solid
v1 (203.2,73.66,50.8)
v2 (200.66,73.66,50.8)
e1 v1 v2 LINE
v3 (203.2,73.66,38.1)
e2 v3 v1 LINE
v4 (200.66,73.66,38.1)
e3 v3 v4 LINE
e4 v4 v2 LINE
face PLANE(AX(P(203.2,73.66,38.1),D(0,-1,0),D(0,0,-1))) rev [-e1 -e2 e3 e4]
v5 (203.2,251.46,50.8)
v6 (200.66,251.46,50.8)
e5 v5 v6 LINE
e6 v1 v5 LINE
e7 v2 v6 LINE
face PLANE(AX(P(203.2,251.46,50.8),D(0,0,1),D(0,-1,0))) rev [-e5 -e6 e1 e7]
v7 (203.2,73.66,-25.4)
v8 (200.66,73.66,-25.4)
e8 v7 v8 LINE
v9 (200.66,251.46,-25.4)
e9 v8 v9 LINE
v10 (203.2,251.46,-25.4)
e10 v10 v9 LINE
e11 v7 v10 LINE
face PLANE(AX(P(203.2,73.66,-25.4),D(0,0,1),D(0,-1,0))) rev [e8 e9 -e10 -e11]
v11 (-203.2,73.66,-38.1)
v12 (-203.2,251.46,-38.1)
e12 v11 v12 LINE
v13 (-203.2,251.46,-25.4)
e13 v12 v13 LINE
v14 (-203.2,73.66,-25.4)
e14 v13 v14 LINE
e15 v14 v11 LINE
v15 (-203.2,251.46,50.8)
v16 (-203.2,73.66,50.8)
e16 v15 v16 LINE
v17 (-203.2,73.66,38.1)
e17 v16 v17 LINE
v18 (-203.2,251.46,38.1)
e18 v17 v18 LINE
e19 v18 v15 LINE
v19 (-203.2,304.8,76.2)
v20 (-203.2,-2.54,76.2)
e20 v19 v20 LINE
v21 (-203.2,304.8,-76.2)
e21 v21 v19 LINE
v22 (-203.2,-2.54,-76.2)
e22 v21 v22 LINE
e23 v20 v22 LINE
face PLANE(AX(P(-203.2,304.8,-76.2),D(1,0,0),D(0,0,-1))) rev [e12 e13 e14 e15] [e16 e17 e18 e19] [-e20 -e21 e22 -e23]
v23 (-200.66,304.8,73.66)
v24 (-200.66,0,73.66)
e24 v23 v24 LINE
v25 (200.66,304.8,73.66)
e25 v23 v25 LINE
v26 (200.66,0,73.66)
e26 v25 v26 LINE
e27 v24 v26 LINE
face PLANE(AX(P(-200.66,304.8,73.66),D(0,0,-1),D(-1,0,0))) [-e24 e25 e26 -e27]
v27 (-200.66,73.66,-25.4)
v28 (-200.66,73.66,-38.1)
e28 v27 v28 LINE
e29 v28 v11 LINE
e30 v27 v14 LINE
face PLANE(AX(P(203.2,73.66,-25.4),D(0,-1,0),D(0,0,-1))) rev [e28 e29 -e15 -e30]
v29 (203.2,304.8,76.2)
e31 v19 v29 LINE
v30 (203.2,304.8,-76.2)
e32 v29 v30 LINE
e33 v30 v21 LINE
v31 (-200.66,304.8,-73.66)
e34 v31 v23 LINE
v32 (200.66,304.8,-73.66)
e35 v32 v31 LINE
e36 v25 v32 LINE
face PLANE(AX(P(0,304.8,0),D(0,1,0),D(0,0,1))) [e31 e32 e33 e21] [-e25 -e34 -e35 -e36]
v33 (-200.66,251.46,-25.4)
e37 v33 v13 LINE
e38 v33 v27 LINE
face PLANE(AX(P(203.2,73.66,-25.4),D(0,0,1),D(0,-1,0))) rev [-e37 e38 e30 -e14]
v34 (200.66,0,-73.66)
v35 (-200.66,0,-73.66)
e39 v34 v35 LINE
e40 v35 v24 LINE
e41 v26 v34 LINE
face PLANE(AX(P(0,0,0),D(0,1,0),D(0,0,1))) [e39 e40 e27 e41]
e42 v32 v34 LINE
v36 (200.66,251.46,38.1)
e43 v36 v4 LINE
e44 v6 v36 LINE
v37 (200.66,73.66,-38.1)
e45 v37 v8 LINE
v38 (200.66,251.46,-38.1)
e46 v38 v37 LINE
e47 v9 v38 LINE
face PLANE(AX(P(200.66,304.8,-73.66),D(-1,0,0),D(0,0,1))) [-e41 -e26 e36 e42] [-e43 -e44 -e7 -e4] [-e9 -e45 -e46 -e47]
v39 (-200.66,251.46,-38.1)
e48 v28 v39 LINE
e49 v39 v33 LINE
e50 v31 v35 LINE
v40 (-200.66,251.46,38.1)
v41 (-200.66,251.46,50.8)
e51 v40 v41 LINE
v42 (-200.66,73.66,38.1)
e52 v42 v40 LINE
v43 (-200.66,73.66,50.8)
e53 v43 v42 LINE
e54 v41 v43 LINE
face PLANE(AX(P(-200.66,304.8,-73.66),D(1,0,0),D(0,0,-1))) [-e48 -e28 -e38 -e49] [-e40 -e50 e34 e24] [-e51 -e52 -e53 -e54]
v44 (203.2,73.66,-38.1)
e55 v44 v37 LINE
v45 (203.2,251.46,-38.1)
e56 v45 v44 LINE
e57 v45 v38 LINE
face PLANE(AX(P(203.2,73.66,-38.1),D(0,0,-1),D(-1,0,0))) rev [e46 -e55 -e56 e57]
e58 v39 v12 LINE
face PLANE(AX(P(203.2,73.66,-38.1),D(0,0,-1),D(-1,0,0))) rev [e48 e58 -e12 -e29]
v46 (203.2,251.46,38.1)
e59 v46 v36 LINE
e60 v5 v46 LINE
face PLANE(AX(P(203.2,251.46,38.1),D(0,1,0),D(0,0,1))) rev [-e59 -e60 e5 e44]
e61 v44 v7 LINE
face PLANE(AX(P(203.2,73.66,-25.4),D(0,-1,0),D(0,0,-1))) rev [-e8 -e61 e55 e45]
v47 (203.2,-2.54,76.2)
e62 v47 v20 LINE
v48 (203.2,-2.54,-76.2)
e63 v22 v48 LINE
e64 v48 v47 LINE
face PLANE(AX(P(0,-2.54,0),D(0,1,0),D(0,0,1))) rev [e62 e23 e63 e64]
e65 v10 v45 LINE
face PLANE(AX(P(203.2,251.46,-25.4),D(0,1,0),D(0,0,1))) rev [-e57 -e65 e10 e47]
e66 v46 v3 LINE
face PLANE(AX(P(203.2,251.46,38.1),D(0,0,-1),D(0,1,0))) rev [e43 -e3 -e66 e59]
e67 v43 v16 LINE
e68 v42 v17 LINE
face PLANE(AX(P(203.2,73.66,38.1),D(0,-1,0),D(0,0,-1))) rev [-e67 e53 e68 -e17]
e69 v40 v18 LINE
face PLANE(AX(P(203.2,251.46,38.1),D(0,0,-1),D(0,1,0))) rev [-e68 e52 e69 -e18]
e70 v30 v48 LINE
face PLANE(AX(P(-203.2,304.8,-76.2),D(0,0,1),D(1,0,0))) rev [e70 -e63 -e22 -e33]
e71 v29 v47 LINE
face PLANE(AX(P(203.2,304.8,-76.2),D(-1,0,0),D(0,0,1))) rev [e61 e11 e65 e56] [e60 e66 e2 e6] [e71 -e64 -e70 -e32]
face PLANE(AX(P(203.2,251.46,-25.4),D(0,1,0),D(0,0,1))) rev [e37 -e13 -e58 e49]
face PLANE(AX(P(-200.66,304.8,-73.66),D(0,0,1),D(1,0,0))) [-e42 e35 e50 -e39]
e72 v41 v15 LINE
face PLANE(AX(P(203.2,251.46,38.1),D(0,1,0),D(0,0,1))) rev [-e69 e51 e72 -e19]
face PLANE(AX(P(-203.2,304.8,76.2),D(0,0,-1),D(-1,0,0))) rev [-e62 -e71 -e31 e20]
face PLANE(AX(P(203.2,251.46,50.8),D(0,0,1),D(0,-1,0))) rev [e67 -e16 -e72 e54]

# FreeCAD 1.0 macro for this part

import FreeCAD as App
import Part
import Sketcher
from FreeCAD import Vector
Q = App.Units.Quantity

doc = App.newDocument("Part")
body = doc.addObject("PartDesign::Body", "Body")

sketch1 = body.newObject("Sketcher::SketchObject", "Sketch")
sketch1.AttachmentSupport = (doc.getObject("XZ_Plane"), [""])
sketch1.MapMode = "FlatFace"
sketch1.addGeometry([
    Part.LineSegment(Vector(-203, -76, 0), Vector(-203, 76, 0)),
    Part.LineSegment(Vector(-203, 76, 0), Vector(203, 76, 0)),
    Part.LineSegment(Vector(203, 76, 0), Vector(203, -76, 0)),
    Part.LineSegment(Vector(203, -76, 0), Vector(-203, -76, 0)),
    Part.LineSegment(Vector(201, 74, 0), Vector(-201, 74, 0)),
    Part.LineSegment(Vector(-201, 74, 0), Vector(-201, -74, 0)),
    Part.LineSegment(Vector(-201, -74, 0), Vector(201, -74, 0)),
    Part.LineSegment(Vector(201, -74, 0), Vector(201, 74, 0)),
], False)
sketch1.addConstraint([
    Sketcher.Constraint("Coincident", 0, 2, 1, 1),
    Sketcher.Constraint("Coincident", 1, 2, 2, 1),
    Sketcher.Constraint("Coincident", 2, 2, 3, 1),
    Sketcher.Constraint("Coincident", 3, 2, 0, 1),
    Sketcher.Constraint("Coincident", 4, 2, 5, 1),
    Sketcher.Constraint("Coincident", 5, 2, 6, 1),
    Sketcher.Constraint("Coincident", 6, 2, 7, 1),
    Sketcher.Constraint("Coincident", 7, 2, 4, 1),
    Sketcher.Constraint("Vertical", 0),
    Sketcher.Constraint("Horizontal", 1),
    Sketcher.Constraint("Vertical", 2),
    Sketcher.Constraint("Horizontal", 3),
    Sketcher.Constraint("Horizontal", 4),
    Sketcher.Constraint("Vertical", 5),
    Sketcher.Constraint("Horizontal", 6),
    Sketcher.Constraint("Vertical", 7),
    Sketcher.Constraint("Symmetric", 0, 2, 2, 2, -1, 1),
    Sketcher.Constraint("Symmetric", 4, 2, 6, 2, -1, 1),
    Sketcher.Constraint("DistanceX", 1, 1, 1, 2, Q("16 in")),
    Sketcher.Constraint("DistanceY", 0, 1, 0, 2, Q("6 in")),
    Sketcher.Constraint("DistanceX", 4, 2, 4, 1, Q("15.8 in")),
    Sketcher.Constraint("DistanceY", 5, 2, 5, 1, Q("5.8 in")),
])
pad1 = body.newObject("PartDesign::Pad", "Pad")
pad1.Profile = sketch1
pad1.Length = Q("12 in")
pad1.Reversed = True

sketch2 = body.newObject("Sketcher::SketchObject", "Sketch001")
sketch2.AttachmentSupport = (doc.getObject("XZ_Plane"), [""])
sketch2.MapMode = "FlatFace"
sketch2.addGeometry([
    Part.LineSegment(Vector(-203, 76, 0), Vector(-203, -76, 0)),
    Part.LineSegment(Vector(-203, -76, 0), Vector(203, -76, 0)),
    Part.LineSegment(Vector(203, -76, 0), Vector(203, 76, 0)),
    Part.LineSegment(Vector(203, 76, 0), Vector(-203, 76, 0)),
], False)
sketch2.addConstraint([
    Sketcher.Constraint("Coincident", 0, 2, 1, 1),
    Sketcher.Constraint("Coincident", 1, 2, 2, 1),
    Sketcher.Constraint("Coincident", 2, 2, 3, 1),
    Sketcher.Constraint("Coincident", 3, 2, 0, 1),
    Sketcher.Constraint("Vertical", 0),
    Sketcher.Constraint("Horizontal", 1),
    Sketcher.Constraint("Vertical", 2),
    Sketcher.Constraint("Horizontal", 3),
    Sketcher.Constraint("Symmetric", 0, 2, 2, 2, -1, 1),
    Sketcher.Constraint("DistanceX", 1, 1, 1, 2, Q("16 in")),
    Sketcher.Constraint("DistanceY", 0, 2, 0, 1, Q("6 in")),
])
pad2 = body.newObject("PartDesign::Pad", "Pad001")
pad2.Profile = sketch2
pad2.Length = Q("0.1 in")

sketch3 = body.newObject("Sketcher::SketchObject", "Sketch002")
sketch3.AttachmentSupport = (doc.getObject("YZ_Plane"), [""])
sketch3.MapMode = "FlatFace"
sketch3.AttachmentOffset = App.Placement(Vector(0, 0, -8 * 25.4), App.Rotation())
sketch3.addGeometry([
    Part.LineSegment(Vector(251, 38, 0), Vector(74, 38, 0)),
    Part.LineSegment(Vector(74, 38, 0), Vector(74, 51, 0)),
    Part.LineSegment(Vector(74, 51, 0), Vector(251, 51, 0)),
    Part.LineSegment(Vector(251, 51, 0), Vector(251, 38, 0)),
    Part.LineSegment(Vector(251, -38, 0), Vector(74, -38, 0)),
    Part.LineSegment(Vector(74, -38, 0), Vector(74, -25, 0)),
    Part.LineSegment(Vector(74, -25, 0), Vector(251, -25, 0)),
    Part.LineSegment(Vector(251, -25, 0), Vector(251, -38, 0)),
], False)
sketch3.addConstraint([
    Sketcher.Constraint("Coincident", 0, 2, 1, 1),
    Sketcher.Constraint("Coincident", 1, 2, 2, 1),
    Sketcher.Constraint("Coincident", 2, 2, 3, 1),
    Sketcher.Constraint("Coincident", 3, 2, 0, 1),
    Sketcher.Constraint("Coincident", 4, 2, 5, 1),
    Sketcher.Constraint("Coincident", 5, 2, 6, 1),
    Sketcher.Constraint("Coincident", 6, 2, 7, 1),
    Sketcher.Constraint("Coincident", 7, 2, 4, 1),
    Sketcher.Constraint("Horizontal", 0),
    Sketcher.Constraint("Vertical", 1),
    Sketcher.Constraint("Horizontal", 2),
    Sketcher.Constraint("Vertical", 3),
    Sketcher.Constraint("Horizontal", 4),
    Sketcher.Constraint("Vertical", 5),
    Sketcher.Constraint("Horizontal", 6),
    Sketcher.Constraint("Vertical", 7),
    Sketcher.Constraint("Symmetric", 0, 2, 4, 2, -1),
    Sketcher.Constraint("Vertical", 3, 2, 6, 2),
    Sketcher.Constraint("Equal", 3, 5),
    Sketcher.Constraint("DistanceX", 0, 2, 0, 1, Q("7 in")),
    Sketcher.Constraint("DistanceY", 1, 1, 1, 2, Q("0.5 in")),
    Sketcher.Constraint("DistanceY", -1, 1, 1, 2, Q("2 in")),
    Sketcher.Constraint("DistanceX", -1, 1, 0, 2, Q("2.9 in")),
])
pocket1 = body.newObject("PartDesign::Pocket", "Pocket")
pocket1.Profile = sketch3
pocket1.Type = "ThroughAll"
pocket1.Midplane = True

doc.recompute()
